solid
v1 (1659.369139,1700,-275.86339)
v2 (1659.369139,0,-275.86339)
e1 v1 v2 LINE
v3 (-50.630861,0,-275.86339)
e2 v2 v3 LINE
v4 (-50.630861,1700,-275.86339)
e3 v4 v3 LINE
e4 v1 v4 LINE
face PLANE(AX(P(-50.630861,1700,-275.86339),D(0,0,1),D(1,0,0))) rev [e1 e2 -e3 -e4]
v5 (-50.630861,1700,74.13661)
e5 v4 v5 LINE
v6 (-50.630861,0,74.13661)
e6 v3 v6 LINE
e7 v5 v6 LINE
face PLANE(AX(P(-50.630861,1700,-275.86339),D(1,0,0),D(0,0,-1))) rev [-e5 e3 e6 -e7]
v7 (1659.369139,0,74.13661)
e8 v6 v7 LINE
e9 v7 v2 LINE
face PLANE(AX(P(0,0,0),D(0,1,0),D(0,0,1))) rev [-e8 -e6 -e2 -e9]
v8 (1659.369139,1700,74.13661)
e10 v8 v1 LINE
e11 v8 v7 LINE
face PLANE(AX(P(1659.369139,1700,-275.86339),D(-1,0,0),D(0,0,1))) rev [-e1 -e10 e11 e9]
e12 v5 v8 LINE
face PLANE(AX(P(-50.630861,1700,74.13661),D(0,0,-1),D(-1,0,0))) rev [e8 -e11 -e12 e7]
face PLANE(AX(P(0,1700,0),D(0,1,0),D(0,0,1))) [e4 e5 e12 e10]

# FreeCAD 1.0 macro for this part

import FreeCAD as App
import Part
import Sketcher

V = App.Vector
Q = App.Units.Quantity

doc = App.newDocument("Part")
body = doc.addObject("PartDesign::Body", "Body")

# Sketch on XZ plane
sketch1 = doc.addObject("Sketcher::SketchObject", "Sketch")
body.addObject(sketch1)
sketch1.AttachmentSupport = (doc.XZ_Plane, [""])
sketch1.MapMode = "FlatFace"
sketch1.addGeometry([
    Part.LineSegment(V(-50.630861, -275.86339, 0), V(-50.630861, 74.13661, 0)),
    Part.LineSegment(V(-50.630861, 74.13661, 0), V(1659.369139, 74.13661, 0)),
    Part.LineSegment(V(1659.369139, 74.13661, 0), V(1659.369139, -275.86339, 0)),
    Part.LineSegment(V(1659.369139, -275.86339, 0), V(-50.630861, -275.86339, 0)),
], False)
sketch1.addConstraint([
    Sketcher.Constraint("Coincident", 0, 2, 1, 1),
    Sketcher.Constraint("Coincident", 1, 2, 2, 1),
    Sketcher.Constraint("Coincident", 2, 2, 3, 1),
    Sketcher.Constraint("Coincident", 3, 2, 0, 1),
    Sketcher.Constraint("Vertical", 0),
    Sketcher.Constraint("Horizontal", 1),
    Sketcher.Constraint("Vertical", 2),
    Sketcher.Constraint("Horizontal", 3),
    Sketcher.Constraint("DistanceX", 1, 1, 1, 2, Q("1710 mm")),
    Sketcher.Constraint("DistanceY", 0, 1, 0, 2, Q("350 mm")),
    Sketcher.Constraint("DistanceX", 0, 2, -1, 1, Q("50.630861 mm")),
    Sketcher.Constraint("DistanceY", -1, 1, 0, 2, Q("74.13661 mm")),
])
pad1 = doc.addObject("PartDesign::Pad", "Pad")
body.addObject(pad1)
pad1.Profile = sketch1
pad1.Length = 1700
pad1.Reversed = True

doc.recompute()
